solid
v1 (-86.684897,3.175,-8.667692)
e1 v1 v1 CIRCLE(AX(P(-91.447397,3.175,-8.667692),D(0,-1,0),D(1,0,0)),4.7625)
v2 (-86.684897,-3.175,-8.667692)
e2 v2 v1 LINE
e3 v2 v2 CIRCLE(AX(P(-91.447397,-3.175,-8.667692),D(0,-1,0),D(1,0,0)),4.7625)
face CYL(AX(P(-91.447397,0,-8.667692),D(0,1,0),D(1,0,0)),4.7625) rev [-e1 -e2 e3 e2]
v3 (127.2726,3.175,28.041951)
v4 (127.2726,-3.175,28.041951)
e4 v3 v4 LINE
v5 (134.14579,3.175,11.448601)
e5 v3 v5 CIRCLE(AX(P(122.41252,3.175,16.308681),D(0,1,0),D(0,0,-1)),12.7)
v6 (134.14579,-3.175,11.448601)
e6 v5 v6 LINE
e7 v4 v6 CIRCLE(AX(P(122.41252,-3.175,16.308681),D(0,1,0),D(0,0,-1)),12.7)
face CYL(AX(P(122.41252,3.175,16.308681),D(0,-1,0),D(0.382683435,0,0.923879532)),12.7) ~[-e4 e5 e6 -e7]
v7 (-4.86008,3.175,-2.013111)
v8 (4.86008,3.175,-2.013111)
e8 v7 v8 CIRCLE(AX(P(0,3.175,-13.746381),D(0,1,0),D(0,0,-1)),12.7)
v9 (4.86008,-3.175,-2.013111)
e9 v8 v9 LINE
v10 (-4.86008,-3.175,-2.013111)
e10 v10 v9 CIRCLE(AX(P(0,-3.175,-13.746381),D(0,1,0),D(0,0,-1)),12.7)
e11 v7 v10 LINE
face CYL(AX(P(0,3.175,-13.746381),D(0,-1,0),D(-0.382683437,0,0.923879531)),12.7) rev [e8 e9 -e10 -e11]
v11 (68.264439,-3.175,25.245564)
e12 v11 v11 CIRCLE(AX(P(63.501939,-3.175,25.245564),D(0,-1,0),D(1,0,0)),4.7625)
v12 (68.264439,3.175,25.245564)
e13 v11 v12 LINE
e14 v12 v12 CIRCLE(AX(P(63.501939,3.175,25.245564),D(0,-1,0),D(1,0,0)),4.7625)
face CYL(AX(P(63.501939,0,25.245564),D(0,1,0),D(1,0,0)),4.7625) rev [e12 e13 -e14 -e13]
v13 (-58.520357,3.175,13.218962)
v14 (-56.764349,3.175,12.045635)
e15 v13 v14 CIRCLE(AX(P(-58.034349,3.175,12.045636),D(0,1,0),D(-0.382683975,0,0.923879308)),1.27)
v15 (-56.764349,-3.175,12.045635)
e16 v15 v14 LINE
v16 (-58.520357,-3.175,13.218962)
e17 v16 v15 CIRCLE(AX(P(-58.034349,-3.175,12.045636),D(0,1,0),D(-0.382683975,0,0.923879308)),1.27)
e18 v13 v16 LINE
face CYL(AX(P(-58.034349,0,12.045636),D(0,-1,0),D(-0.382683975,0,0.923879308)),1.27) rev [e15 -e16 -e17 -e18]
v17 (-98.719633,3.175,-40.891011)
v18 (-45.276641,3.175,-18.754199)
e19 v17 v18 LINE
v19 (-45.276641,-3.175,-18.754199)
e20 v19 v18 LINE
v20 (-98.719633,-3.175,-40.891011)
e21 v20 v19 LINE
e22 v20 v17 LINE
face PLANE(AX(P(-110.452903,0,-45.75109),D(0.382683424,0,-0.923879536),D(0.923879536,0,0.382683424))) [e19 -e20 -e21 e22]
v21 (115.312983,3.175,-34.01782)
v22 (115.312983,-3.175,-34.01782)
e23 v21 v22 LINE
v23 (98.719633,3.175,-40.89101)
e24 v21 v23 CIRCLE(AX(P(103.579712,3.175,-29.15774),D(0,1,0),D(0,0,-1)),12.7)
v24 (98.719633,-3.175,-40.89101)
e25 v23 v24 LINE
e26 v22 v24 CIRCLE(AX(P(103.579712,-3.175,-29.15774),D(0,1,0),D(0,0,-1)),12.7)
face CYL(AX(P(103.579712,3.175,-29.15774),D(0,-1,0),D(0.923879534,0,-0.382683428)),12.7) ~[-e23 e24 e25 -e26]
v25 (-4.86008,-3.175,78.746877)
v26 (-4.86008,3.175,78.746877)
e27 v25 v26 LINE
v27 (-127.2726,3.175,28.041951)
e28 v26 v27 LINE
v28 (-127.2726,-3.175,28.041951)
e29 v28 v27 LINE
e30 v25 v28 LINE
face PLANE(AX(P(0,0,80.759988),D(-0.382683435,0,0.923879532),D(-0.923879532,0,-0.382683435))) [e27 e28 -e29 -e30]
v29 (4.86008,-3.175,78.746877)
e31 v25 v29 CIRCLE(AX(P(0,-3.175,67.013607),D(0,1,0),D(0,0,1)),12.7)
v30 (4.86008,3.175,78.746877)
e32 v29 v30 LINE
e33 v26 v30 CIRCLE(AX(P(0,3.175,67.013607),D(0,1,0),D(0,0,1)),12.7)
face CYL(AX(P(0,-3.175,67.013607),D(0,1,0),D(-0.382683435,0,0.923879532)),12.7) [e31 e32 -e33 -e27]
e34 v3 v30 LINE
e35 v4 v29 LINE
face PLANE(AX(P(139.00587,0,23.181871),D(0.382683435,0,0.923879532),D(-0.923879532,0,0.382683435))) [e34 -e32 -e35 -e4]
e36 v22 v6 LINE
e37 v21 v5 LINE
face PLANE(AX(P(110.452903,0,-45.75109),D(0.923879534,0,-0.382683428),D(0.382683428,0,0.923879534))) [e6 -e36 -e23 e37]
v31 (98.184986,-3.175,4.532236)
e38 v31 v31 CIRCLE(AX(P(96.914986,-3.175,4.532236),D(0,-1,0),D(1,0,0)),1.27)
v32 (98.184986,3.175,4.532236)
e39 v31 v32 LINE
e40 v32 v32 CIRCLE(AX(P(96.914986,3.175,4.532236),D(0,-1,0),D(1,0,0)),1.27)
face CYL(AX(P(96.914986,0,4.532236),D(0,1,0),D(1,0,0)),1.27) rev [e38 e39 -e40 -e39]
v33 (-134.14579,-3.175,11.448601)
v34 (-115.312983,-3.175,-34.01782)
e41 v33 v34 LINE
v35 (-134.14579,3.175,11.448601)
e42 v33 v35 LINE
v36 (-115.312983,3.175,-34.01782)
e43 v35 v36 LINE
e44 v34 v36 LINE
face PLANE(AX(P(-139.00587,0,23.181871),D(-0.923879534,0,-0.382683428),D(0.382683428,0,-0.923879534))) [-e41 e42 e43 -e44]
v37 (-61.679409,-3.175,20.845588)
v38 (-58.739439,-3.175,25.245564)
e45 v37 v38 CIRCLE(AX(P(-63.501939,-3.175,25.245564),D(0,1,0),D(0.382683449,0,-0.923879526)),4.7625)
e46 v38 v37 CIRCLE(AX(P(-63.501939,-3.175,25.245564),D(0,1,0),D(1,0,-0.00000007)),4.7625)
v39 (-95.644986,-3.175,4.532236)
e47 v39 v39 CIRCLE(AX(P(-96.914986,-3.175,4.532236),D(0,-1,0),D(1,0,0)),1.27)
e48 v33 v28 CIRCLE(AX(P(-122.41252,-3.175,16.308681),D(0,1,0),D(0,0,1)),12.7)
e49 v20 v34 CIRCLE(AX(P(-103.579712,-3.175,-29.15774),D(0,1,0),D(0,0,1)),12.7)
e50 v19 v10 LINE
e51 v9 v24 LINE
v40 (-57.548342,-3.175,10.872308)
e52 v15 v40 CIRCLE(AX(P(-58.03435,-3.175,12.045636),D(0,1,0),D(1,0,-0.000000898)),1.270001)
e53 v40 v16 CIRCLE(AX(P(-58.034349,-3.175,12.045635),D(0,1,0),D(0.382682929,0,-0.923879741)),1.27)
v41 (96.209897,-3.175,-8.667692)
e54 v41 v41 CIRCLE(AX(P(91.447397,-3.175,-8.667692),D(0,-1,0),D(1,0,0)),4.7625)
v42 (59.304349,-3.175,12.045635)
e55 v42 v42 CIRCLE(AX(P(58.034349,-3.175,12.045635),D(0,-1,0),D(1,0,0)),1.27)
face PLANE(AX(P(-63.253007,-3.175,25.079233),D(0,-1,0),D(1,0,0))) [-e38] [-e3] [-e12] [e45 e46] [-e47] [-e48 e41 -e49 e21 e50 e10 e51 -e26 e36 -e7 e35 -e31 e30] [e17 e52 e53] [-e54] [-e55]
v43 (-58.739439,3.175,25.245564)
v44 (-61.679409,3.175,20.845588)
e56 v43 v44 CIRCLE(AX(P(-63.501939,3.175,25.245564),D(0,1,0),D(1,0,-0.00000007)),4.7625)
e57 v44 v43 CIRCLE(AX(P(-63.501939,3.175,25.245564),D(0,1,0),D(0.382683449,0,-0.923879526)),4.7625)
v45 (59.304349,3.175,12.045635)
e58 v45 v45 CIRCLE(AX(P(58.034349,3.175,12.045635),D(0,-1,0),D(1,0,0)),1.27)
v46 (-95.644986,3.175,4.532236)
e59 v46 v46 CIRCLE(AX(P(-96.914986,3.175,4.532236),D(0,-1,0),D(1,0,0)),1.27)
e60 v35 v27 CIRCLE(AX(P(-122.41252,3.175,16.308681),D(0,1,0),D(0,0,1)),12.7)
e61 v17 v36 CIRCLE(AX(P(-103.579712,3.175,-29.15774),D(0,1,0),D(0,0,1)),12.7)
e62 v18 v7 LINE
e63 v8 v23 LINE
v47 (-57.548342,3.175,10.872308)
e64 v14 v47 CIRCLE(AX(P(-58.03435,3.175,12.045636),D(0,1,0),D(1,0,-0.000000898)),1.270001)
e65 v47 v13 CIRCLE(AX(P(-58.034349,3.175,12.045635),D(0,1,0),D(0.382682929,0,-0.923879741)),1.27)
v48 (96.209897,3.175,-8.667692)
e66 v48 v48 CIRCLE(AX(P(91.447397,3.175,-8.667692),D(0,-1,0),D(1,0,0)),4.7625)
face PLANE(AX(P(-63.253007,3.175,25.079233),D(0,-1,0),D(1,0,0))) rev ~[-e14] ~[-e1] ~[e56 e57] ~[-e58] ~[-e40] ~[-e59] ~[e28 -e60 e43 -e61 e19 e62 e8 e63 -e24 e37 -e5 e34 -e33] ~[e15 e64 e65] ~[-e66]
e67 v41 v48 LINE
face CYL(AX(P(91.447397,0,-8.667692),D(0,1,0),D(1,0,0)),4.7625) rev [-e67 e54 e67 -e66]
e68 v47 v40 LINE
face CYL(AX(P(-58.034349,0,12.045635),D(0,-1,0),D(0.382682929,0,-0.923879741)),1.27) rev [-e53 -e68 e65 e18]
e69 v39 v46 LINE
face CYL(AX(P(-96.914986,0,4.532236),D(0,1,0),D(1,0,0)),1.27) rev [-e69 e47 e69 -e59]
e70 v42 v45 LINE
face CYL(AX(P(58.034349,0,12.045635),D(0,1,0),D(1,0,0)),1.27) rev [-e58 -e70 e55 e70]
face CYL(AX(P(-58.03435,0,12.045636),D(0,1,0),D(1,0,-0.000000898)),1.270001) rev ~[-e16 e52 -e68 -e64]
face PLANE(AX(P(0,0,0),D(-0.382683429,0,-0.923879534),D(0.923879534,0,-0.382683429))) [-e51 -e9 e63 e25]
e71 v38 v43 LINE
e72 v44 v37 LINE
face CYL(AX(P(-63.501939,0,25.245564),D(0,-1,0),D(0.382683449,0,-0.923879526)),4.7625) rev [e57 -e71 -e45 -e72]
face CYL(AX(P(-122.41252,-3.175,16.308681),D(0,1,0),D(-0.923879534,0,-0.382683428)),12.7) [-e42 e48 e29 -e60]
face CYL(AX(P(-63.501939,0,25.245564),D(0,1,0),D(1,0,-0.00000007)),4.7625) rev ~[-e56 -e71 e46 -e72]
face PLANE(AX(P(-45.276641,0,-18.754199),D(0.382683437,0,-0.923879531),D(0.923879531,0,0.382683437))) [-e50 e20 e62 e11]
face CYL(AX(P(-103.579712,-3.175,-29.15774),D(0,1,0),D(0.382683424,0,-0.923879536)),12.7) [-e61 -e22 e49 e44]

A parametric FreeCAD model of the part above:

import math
import FreeCAD as App
import Part
import Sketcher

V = App.Vector
Q = App.Units.Quantity


def edges_at(feature, points):
    """Names of the edges that pass closest to the given points."""
    edges = feature.Shape.Edges
    near = lambda p: min(range(len(edges)), key=lambda i: edges[i].distToShape(Part.Vertex(*p))[0])
    return sorted({f"Edge{near(p) + 1}" for p in points})


def add_polygon(sketch, points):
    """Adds a closed chain of lines whose ends are joined by coincident constraints."""
    first, n = sketch.GeometryCount, len(points)
    for a, b in zip(points, points[1:] + points[:1]):
        sketch.addGeometry(Part.LineSegment(App.Vector(*a, 0), App.Vector(*b, 0)), False)
    for i in range(n):
        sketch.addConstraint(Sketcher.Constraint("Coincident", first + i, 2, first + (i + 1) % n, 1))

doc = App.newDocument("Part")
body = doc.addObject("PartDesign::Body", "Body")

# Sketch on XZ plane
sketch1 = body.newObject("Sketcher::SketchObject", "Sketch")
sketch1.AttachmentSupport = (doc.getObject("XZ_Plane"), [""])
sketch1.MapMode = "FlatFace"
add_polygon(sketch1, [(-45.3, -18.8), (0, 0), (110.5, -45.8), (139, 23.2), (0, 80.8), (-139, 23.2), (-110.5, -45.8)])  # lines 0-6
sketch1.addGeometry(Part.Circle(V(-91.4, -8.7, 0), V(0, 0, 1), 4.8), False)  # 7
sketch1.addGeometry(Part.Circle(V(-96.9, 4.5, 0), V(0, 0, 1), 1.3), False)  # 8
sketch1.addGeometry(Part.Circle(V(91.4, -8.7, 0), V(0, 0, 1), 4.8), False)  # 9
sketch1.addGeometry(Part.Circle(V(96.9, 4.5, 0), V(0, 0, 1), 1.3), False)  # 10
sketch1.addGeometry(Part.ArcOfCircle(Part.Circle(V(-58, 12, 0), V(0, 0, 1), 1.3), math.radians(0), math.radians(113)), False)  # 11
sketch1.addGeometry(Part.ArcOfCircle(Part.Circle(V(-58, 12, 0), V(0, 0, 1), 1.3), math.radians(-68), math.radians(0)), False)  # 12
sketch1.addGeometry(Part.ArcOfCircle(Part.Circle(V(-58, 12, 0), V(0, 0, 1), 1.3), math.radians(112), math.radians(292)), False)  # 13
sketch1.addGeometry(Part.ArcOfCircle(Part.Circle(V(-63.5, 25.2, 0), V(0, 0, 1), 4.8), math.radians(0), math.radians(293)), False)  # 14
sketch1.addGeometry(Part.ArcOfCircle(Part.Circle(V(-63.5, 25.2, 0), V(0, 0, 1), 4.8), math.radians(-67), math.radians(0)), False)  # 15
sketch1.addGeometry(Part.Circle(V(58, 12, 0), V(0, 0, 1), 1.3), False)  # 16
sketch1.addGeometry(Part.Circle(V(63.5, 25.2, 0), V(0, 0, 1), 4.8), False)  # 17
sketch1.addConstraint(Sketcher.Constraint("Tangent", 11, 1, 12, 2))
sketch1.addConstraint(Sketcher.Constraint("Tangent", 12, 1, 13, 2))
sketch1.addConstraint(Sketcher.Constraint("Tangent", 13, 1, 11, 2))
sketch1.addConstraint(Sketcher.Constraint("Tangent", 14, 1, 15, 2))
sketch1.addConstraint(Sketcher.Constraint("Coincident", 15, 1, 14, 2))
sketch1.addConstraint(Sketcher.Constraint("Coincident", 0, 2, -1, 1))
sketch1.addConstraint(Sketcher.Constraint("Equal", 7, 9))
sketch1.addConstraint(Sketcher.Constraint("Equal", 8, 10))
sketch1.addConstraint(Sketcher.Constraint("Equal", 10, 11))
sketch1.addConstraint(Sketcher.Constraint("Equal", 9, 14))
sketch1.addConstraint(Sketcher.Constraint("Equal", 13, 16))
sketch1.addConstraint(Sketcher.Constraint("Equal", 15, 17))
sketch1.addConstraint(Sketcher.Constraint("Symmetric", 7, 3, 9, 3, -2))
sketch1.addConstraint(Sketcher.Constraint("Symmetric", 8, 3, 10, 3, -2))
sketch1.addConstraint(Sketcher.Constraint("Symmetric", 11, 3, 16, 3, -2))
sketch1.addConstraint(Sketcher.Constraint("Symmetric", 14, 3, 17, 3, -2))
sketch1.addConstraint(Sketcher.Constraint("Symmetric", 2, 2, 4, 2, -2))
sketch1.addConstraint(Sketcher.Constraint("Symmetric", 1, 2, 5, 2, -2))
sketch1.addConstraint(Sketcher.Constraint("PointOnObject", 3, 2, -2))
sketch1.addConstraint(Sketcher.Constraint("Perpendicular", 1, 2))
sketch1.addConstraint(Sketcher.Constraint("Perpendicular", 2, 3))
sketch1.addConstraint(Sketcher.Constraint("Parallel", 0, 4))
sketch1.addConstraint(Sketcher.Constraint("Horizontal", 16, 3, 11, 1))
sketch1.addConstraint(Sketcher.Constraint("Horizontal", 17, 3, 14, 1))
sketch1.addConstraint(Sketcher.Constraint("Diameter", 8, Q("0.1 in")))
sketch1.addConstraint(Sketcher.Constraint("Diameter", 7, Q("0.375 in")))
sketch1.addConstraint(Sketcher.Constraint("Angle", 0, Q("22.5 deg")))
sketch1.addConstraint(Sketcher.Constraint("Distance", 2, Q("2.9375 in")))
sketch1.addConstraint(Sketcher.Constraint("DistanceY", 6, 2, -1, 1, 18.754199))
sketch1.addConstraint(Sketcher.Constraint("DistanceY", 8, 3, 11, 3, 7.5134))
sketch1.addConstraint(Sketcher.Constraint("DistanceX", 13, 3, 16, 3, 116.068698))
sketch1.addConstraint(Sketcher.Constraint("Distance", 1, 119.553361))
sketch1.addConstraint(Sketcher.Constraint("DistanceX", 14, 3, -1, 1, 63.501939))
sketch1.addConstraint(Sketcher.Constraint("DistanceY", -1, 1, 12, 1, 10.872308))
sketch1.addConstraint(Sketcher.Constraint("DistanceY", -1, 1, 13, 1, 13.218962))
sketch1.addConstraint(Sketcher.Constraint("DistanceX", 15, 1, -1, 1, 61.679409))
sketch1.addConstraint(Sketcher.Constraint("DistanceY", -1, 1, 15, 1, 20.845588))
sketch1.addConstraint(Sketcher.Constraint("DistanceX", 8, 3, 7, 3, 5.467589))
sketch1.addConstraint(Sketcher.Constraint("DistanceX", 8, 3, 10, 3, 193.829972))
sketch1.addConstraint(Sketcher.Constraint("DistanceY", 7, 3, 12, 3, 20.713328))
sketch1.addConstraint(Sketcher.Constraint("DistanceY", 11, 3, 14, 3, 13.199928))
pad1 = body.newObject("PartDesign::Pad", "Pad")
pad1.Profile = sketch1
pad1.Length = Q("0.25 in")
pad1.Midplane = True
doc.recompute()

fillet = body.newObject("PartDesign::Fillet", "Fillet")
fillet.Base = (pad1, edges_at(pad1, [
    (-139.006, 0, 23.182),
    (0, 0, 80.76),
    (0, 0, 0),
    (110.453, 0, -45.751),
    (139.006, 0, 23.182),
    (-110.453, 0, -45.751),
]))
fillet.Radius = Q("0.5 in")

doc.recompute()
